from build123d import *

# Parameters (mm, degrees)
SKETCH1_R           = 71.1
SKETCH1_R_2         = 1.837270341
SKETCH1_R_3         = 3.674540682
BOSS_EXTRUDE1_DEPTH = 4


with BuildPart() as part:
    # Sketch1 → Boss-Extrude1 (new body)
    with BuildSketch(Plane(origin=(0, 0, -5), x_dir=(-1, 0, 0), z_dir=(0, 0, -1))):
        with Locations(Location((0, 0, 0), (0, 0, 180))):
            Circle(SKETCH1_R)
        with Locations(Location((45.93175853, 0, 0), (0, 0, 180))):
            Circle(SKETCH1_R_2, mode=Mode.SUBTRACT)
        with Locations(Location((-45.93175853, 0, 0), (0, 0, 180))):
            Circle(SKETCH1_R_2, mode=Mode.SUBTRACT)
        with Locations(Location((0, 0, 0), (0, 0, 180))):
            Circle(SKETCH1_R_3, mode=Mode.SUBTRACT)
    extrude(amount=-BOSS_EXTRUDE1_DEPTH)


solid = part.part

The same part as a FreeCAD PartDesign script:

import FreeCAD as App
import Part
import Sketcher

V = App.Vector
Q = App.Units.Quantity

doc = App.newDocument("Part")
body = doc.addObject("PartDesign::Body", "Body")

sketch1 = body.newObject("Sketcher::SketchObject", "Sketch")
sketch1.AttachmentSupport = (doc.getObject("XY_Plane"), [""])
sketch1.MapMode = "FlatFace"
sketch1.AttachmentOffset = App.Placement(V(0, 0, -5), App.Rotation())
sketch1.addGeometry([
    Part.Circle(V(0, 0, 0), V(0, 0, 1), 71.1),
    Part.Circle(V(-45.9, 0, 0), V(0, 0, 1), 1.8),
    Part.Circle(V(0, 0, 0), V(0, 0, 1), 3.7),
    Part.Circle(V(45.9, 0, 0), V(0, 0, 1), 1.8),
], False)
sketch1.addConstraint([
    Sketcher.Constraint("Coincident", 0, 3, -1, 1),
    Sketcher.Constraint("Coincident", 2, 3, -1, 1),
    Sketcher.Constraint("Equal", 1, 3),
    Sketcher.Constraint("Symmetric", 1, 3, 3, 3, -1, 1),
    Sketcher.Constraint("PointOnObject", 1, 3, -1),
    Sketcher.Constraint("Diameter", 0, Q("142.2 mm")),
    Sketcher.Constraint("Diameter", 1, Q("3.674541 mm")),
    Sketcher.Constraint("Diameter", 2, Q("7.349081 mm")),
    Sketcher.Constraint("DistanceX", 1, 3, -1, 1, Q("45.931759 mm")),
])
pad1 = body.newObject("PartDesign::Pad", "Pad")
pad1.Profile = sketch1
pad1.Length = 4

doc.recompute()
